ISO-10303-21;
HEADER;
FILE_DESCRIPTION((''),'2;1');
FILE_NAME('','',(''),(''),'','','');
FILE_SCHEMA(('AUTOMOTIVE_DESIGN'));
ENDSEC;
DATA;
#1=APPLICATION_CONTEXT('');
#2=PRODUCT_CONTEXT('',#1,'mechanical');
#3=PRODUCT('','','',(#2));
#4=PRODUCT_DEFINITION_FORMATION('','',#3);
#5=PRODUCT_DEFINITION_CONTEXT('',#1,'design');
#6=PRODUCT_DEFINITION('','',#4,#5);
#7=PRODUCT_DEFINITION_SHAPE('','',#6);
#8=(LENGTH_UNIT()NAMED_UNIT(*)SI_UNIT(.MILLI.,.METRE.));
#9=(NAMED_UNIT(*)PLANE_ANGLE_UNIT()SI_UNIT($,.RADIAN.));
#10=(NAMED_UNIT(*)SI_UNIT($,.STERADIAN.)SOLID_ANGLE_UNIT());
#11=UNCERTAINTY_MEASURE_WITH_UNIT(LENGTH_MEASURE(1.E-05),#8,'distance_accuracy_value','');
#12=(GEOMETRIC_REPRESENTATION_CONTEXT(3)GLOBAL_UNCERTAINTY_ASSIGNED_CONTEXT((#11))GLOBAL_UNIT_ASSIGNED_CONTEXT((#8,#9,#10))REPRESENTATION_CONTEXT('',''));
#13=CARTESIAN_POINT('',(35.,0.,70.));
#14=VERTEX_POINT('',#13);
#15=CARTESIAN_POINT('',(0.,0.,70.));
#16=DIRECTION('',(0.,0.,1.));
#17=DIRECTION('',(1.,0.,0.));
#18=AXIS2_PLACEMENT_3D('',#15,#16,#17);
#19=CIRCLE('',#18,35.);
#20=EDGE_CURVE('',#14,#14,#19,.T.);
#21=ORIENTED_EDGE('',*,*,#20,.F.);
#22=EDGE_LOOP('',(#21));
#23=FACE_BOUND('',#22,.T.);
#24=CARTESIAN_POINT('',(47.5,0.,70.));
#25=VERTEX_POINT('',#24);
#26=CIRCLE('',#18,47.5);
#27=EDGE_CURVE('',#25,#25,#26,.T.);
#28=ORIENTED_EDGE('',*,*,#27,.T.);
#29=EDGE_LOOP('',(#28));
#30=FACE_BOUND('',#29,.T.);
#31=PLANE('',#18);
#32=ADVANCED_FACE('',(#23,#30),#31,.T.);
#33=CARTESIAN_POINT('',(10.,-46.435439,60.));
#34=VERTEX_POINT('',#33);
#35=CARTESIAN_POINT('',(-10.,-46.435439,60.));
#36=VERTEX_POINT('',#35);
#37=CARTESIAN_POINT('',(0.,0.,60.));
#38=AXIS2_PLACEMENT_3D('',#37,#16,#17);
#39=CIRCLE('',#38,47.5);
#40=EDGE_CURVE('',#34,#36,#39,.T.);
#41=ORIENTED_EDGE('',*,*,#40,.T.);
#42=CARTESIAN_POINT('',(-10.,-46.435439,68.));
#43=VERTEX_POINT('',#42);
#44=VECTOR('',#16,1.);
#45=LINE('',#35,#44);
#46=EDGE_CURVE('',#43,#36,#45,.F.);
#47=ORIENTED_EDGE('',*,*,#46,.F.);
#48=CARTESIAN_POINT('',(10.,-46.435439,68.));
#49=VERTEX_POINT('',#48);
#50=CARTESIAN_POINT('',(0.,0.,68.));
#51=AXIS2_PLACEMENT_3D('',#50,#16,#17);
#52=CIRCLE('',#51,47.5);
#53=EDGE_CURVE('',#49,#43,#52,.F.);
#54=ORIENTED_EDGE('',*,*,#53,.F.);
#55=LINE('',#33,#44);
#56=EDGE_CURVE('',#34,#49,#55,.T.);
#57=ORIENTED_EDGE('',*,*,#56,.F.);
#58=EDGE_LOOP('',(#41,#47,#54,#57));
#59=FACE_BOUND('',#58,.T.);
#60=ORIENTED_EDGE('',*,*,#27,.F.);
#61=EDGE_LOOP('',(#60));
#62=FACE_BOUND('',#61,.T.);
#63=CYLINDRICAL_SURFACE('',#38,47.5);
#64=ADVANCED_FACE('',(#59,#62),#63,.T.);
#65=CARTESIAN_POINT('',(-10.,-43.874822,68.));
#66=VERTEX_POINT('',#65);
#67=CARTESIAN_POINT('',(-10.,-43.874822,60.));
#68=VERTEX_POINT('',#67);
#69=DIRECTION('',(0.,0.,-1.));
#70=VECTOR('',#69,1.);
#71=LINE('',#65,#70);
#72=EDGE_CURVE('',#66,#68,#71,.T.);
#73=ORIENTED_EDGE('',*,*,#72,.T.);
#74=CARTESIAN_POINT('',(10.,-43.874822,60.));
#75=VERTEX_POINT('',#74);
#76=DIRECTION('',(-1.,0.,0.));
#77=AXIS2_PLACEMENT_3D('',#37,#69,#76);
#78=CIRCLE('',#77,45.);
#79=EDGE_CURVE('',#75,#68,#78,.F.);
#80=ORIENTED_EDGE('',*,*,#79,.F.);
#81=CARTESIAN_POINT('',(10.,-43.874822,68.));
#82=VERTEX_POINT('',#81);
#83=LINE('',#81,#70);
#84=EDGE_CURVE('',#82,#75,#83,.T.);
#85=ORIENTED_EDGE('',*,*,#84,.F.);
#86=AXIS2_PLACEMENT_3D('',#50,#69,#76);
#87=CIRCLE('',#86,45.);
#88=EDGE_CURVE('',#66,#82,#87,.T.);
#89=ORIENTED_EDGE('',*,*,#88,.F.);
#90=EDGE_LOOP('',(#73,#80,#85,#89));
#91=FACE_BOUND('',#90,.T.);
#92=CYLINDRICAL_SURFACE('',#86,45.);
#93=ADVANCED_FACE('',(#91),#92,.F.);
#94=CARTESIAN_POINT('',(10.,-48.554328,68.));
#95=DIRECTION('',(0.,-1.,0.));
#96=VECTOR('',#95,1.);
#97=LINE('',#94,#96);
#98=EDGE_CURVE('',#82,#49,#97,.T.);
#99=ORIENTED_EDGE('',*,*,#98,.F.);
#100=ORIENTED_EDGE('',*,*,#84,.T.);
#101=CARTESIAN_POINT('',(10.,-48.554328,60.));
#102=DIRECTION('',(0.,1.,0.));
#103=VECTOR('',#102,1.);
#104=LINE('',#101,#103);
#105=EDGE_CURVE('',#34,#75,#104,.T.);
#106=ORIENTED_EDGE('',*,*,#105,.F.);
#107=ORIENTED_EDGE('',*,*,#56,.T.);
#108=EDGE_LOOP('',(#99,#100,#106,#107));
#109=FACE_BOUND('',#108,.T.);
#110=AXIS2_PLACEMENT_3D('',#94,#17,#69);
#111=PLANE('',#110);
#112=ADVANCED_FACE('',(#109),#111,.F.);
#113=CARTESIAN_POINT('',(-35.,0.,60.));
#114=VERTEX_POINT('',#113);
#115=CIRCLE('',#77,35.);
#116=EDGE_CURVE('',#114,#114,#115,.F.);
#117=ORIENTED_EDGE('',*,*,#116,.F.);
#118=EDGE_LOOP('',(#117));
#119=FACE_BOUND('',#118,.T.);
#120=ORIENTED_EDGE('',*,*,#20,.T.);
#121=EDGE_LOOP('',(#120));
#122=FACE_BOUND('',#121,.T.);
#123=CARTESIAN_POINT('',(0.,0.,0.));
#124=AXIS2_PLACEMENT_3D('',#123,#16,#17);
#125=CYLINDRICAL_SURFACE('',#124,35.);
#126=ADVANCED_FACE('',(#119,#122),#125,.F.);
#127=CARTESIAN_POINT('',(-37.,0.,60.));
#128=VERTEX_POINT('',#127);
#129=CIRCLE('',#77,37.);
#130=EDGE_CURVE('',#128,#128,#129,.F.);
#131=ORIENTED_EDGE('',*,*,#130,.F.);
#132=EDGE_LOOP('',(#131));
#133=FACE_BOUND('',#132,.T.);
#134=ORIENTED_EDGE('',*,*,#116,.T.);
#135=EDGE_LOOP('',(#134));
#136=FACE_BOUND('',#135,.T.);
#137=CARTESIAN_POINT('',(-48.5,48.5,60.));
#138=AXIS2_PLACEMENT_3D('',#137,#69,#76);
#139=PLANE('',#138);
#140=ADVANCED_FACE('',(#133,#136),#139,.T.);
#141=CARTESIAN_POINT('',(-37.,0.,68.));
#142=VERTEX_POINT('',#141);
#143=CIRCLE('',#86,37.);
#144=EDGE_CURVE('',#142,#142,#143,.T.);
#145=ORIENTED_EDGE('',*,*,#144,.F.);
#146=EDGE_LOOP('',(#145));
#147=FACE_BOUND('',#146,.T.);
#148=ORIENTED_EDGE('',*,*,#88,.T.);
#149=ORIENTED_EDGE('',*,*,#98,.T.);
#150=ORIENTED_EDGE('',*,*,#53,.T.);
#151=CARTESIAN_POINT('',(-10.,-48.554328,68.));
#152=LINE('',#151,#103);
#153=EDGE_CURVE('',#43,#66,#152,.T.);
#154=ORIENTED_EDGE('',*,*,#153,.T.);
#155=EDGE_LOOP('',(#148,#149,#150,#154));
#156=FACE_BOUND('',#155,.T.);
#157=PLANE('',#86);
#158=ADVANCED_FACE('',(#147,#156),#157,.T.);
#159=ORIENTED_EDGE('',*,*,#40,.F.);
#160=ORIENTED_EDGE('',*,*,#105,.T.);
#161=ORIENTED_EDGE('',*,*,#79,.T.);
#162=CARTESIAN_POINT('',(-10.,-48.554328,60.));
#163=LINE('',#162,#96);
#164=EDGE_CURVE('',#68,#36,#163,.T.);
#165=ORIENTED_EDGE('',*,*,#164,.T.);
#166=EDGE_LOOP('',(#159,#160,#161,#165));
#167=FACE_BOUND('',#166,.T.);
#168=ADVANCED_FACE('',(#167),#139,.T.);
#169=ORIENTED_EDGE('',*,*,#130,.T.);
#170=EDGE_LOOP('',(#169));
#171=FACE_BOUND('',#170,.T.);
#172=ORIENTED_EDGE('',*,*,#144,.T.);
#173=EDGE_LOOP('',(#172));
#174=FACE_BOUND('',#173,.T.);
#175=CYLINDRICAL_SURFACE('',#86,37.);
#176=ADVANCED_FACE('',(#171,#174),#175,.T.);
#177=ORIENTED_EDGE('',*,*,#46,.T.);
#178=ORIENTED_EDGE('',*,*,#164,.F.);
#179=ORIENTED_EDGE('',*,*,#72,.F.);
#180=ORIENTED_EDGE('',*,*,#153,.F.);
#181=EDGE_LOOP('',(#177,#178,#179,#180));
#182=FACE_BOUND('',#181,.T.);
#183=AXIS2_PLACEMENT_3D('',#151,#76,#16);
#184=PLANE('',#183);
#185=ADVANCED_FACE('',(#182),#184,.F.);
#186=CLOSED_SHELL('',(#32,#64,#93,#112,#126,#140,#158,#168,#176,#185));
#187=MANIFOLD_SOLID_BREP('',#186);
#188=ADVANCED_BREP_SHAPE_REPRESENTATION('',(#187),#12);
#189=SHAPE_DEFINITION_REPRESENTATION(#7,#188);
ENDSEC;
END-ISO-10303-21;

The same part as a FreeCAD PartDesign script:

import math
import FreeCAD as App
import Part
import Sketcher
from FreeCAD import Vector


def add_polygon(sketch, points):
    """Adds a closed chain of lines whose ends are joined by coincident constraints."""
    first, n = sketch.GeometryCount, len(points)
    for a, b in zip(points, points[1:] + points[:1]):
        sketch.addGeometry(Part.LineSegment(App.Vector(*a, 0), App.Vector(*b, 0)), False)
    for i in range(n):
        sketch.addConstraint(Sketcher.Constraint("Coincident", first + i, 2, first + (i + 1) % n, 1))

doc = App.newDocument("Part")
body = doc.addObject("PartDesign::Body", "Body")

# Sketch on XY plane
sketch1 = body.newObject("Sketcher::SketchObject", "Sketch")
sketch1.AttachmentSupport = (doc.getObject("XY_Plane"), [""])
sketch1.MapMode = "FlatFace"
sketch1.addGeometry(Part.Circle(Vector(0, 0, 0), Vector(0, 0, 1), 48.5), False)
sketch1.addConstraint([
    Sketcher.Constraint("Coincident", 0, 3, -1, 1),
    Sketcher.Constraint("Diameter", 0, 97.0),
])
pad1 = body.newObject("PartDesign::Pad", "Pad")
pad1.Profile = sketch1
pad1.Length = 70

# Sketch on XY plane
sketch2 = body.newObject("Sketcher::SketchObject", "Sketch001")
sketch2.AttachmentSupport = (doc.getObject("XY_Plane"), [""])
sketch2.MapMode = "FlatFace"
sketch2.AttachmentOffset = App.Placement(Vector(0, 0, 70), App.Rotation())
sketch2.addGeometry([
    Part.Circle(Vector(0, 0, 0), Vector(0, 0, 1), 48.5),
    Part.Circle(Vector(0, 0, 0), Vector(0, 0, 1), 47.5),
], False)
sketch2.addConstraint([
    Sketcher.Constraint("Coincident", 0, 3, -1, 1),
    Sketcher.Constraint("Coincident", 1, 3, -1, 1),
    Sketcher.Constraint("Diameter", 0, 97.0),
    Sketcher.Constraint("Diameter", 1, 95.0),
])
pocket1 = body.newObject("PartDesign::Pocket", "Pocket")
pocket1.Profile = sketch2
pocket1.Length = 10

# Sketch on XY plane
sketch3 = body.newObject("Sketcher::SketchObject", "Sketch002")
sketch3.AttachmentSupport = (doc.getObject("XY_Plane"), [""])
sketch3.MapMode = "FlatFace"
sketch3.AttachmentOffset = App.Placement(Vector(0, 0, 70), App.Rotation())
sketch3.addGeometry(Part.Circle(Vector(0, 0, 0), Vector(0, 0, 1), 35), False)
sketch3.addConstraint([
    Sketcher.Constraint("Coincident", 0, 3, -1, 1),
    Sketcher.Constraint("Diameter", 0, 70.0),
])
pocket2 = body.newObject("PartDesign::Pocket", "Pocket001")
pocket2.Profile = sketch3
pocket2.Type = "ThroughAll"

# Sketch on XY plane
sketch4 = body.newObject("Sketcher::SketchObject", "Sketch003")
sketch4.AttachmentSupport = (doc.getObject("XY_Plane"), [""])
sketch4.MapMode = "FlatFace"
sketch4.addGeometry([
    Part.Circle(Vector(0, 0, 0), Vector(0, 0, 1), 45),
    Part.Circle(Vector(0, 0, 0), Vector(0, 0, 1), 37),
], False)
sketch4.addConstraint([
    Sketcher.Constraint("Coincident", 0, 3, -1, 1),
    Sketcher.Constraint("Coincident", 1, 3, -1, 1),
    Sketcher.Constraint("Diameter", 0, 90.0),
    Sketcher.Constraint("Diameter", 1, 74.0),
])
pocket3 = body.newObject("PartDesign::Pocket", "Pocket002")
pocket3.Profile = sketch4
pocket3.Length = 68
pocket3.Reversed = True

# Sketch on XY plane
sketch5 = body.newObject("Sketcher::SketchObject", "Sketch004")
sketch5.AttachmentSupport = (doc.getObject("XY_Plane"), [""])
sketch5.MapMode = "FlatFace"
add_polygon(sketch5, [(10, -43.874822), (10, -48.554328), (-10, -48.554328), (-10, -43.874822)])  # lines 0-3
sketch5.addConstraint([
    Sketcher.Constraint("Vertical", 0),
    Sketcher.Constraint("Horizontal", 1),
    Sketcher.Constraint("Vertical", 2),
    Sketcher.Constraint("Horizontal", 3),
    Sketcher.Constraint("DistanceX", 1, 2, 1, 1, 20.0),
    Sketcher.Constraint("DistanceX", -1, 1, 0, 2, 10.0),
    Sketcher.Constraint("DistanceY", 0, 2, 0, 1, 4.679506),
    Sketcher.Constraint("DistanceY", 2, 2, -1, 1, 43.874822),
])
pocket4 = body.newObject("PartDesign::Pocket", "Pocket003")
pocket4.Profile = sketch5
pocket4.Length = 68
pocket4.Reversed = True

# Sketch on XY plane
sketch6 = body.newObject("Sketcher::SketchObject", "Sketch005")
sketch6.AttachmentSupport = (doc.getObject("XY_Plane"), [""])
sketch6.MapMode = "FlatFace"
sketch6.addGeometry([
    Part.ArcOfCircle(Part.Circle(Vector(0, 0, 0), Vector(0, 0, 1), 48.5), math.radians(135), math.radians(225)),  # 0
    Part.LineSegment(Vector(-34.294679, 34.294679, 0), Vector(-31.819805, 31.819805, 0)),  # 1
    Part.ArcOfCircle(Part.Circle(Vector(0, 0, 0), Vector(0, 0, 1), 45), math.radians(135), math.radians(225)),  # 2
    Part.LineSegment(Vector(-31.819805, -31.819805, 0), Vector(-34.294679, -34.294679, 0)),  # 3
    Part.ArcOfCircle(Part.Circle(Vector(0, 0, 0), Vector(0, 0, 1), 48.5), math.radians(-45), math.radians(45)),  # 4
    Part.LineSegment(Vector(34.294679, -34.294679, 0), Vector(31.819805, -31.819805, 0)),  # 5
    Part.ArcOfCircle(Part.Circle(Vector(0, 0, 0), Vector(0, 0, 1), 45), math.radians(-45), math.radians(45)),  # 6
    Part.LineSegment(Vector(31.819805, 31.819805, 0), Vector(34.294679, 34.294679, 0)),  # 7
], False)
sketch6.addConstraint([
    Sketcher.Constraint("Coincident", 0, 1, 1, 1),
    Sketcher.Constraint("Coincident", 1, 2, 2, 1),
    Sketcher.Constraint("Coincident", 2, 2, 3, 1),
    Sketcher.Constraint("Coincident", 3, 2, 0, 2),
    Sketcher.Constraint("Coincident", 4, 1, 5, 1),
    Sketcher.Constraint("Coincident", 5, 2, 6, 1),
    Sketcher.Constraint("Coincident", 6, 2, 7, 1),
    Sketcher.Constraint("Coincident", 7, 2, 4, 2),
    Sketcher.Constraint("Coincident", 0, 3, -1, 1),
    Sketcher.Constraint("Coincident", 2, 3, -1, 1),
    Sketcher.Constraint("Coincident", 4, 3, -1, 1),
    Sketcher.Constraint("Coincident", 6, 3, -1, 1),
    Sketcher.Constraint("Equal", 0, 4),
    Sketcher.Constraint("Equal", 2, 6),
    Sketcher.Constraint("Perpendicular", 1, 3),
    Sketcher.Constraint("Perpendicular", 3, 5),
    Sketcher.Constraint("Perpendicular", 5, 7),
    Sketcher.Constraint("Horizontal", 3, 2, 4, 1),
    Sketcher.Constraint("Horizontal", 2, 2, 5, 2),
    Sketcher.Constraint("Horizontal", 1, 2, 6, 2),
    Sketcher.Constraint("Vertical", 1, 2, 2, 2),
    Sketcher.Constraint("Radius", 2, 45.0),
    Sketcher.Constraint("Radius", 0, 48.5),
    Sketcher.Constraint("DistanceX", 0, 1, -1, 1, 34.294679),
])
pad2 = body.newObject("PartDesign::Pad", "Pad001")
pad2.Profile = sketch6
pad2.Length = 10
pad2.Reversed = True

# Sketch on XZ plane
sketch7 = body.newObject("Sketcher::SketchObject", "Sketch006")
sketch7.AttachmentSupport = (doc.getObject("XZ_Plane"), [""])
sketch7.MapMode = "FlatFace"
add_polygon(sketch7, [(-48.5, -23.8127), (-48.5, 60), (48.582033, 60), (48.582033, -23.8127)])  # lines 0-3
sketch7.addConstraint([
    Sketcher.Constraint("Vertical", 0),
    Sketcher.Constraint("Horizontal", 1),
    Sketcher.Constraint("Vertical", 2),
    Sketcher.Constraint("Horizontal", 3),
    Sketcher.Constraint("DistanceY", -1, 1, 0, 2, 60.0),
    Sketcher.Constraint("DistanceX", 0, 2, -1, 1, 48.5),
    Sketcher.Constraint("DistanceY", 0, 1, 0, 2, 83.8127),
    Sketcher.Constraint("DistanceX", 1, 1, 1, 2, 97.082033),
])
pocket5 = body.newObject("PartDesign::Pocket", "Pocket004")
pocket5.Profile = sketch7
pocket5.Type = "ThroughAll"
pocket5.Midplane = True

doc.recompute()
